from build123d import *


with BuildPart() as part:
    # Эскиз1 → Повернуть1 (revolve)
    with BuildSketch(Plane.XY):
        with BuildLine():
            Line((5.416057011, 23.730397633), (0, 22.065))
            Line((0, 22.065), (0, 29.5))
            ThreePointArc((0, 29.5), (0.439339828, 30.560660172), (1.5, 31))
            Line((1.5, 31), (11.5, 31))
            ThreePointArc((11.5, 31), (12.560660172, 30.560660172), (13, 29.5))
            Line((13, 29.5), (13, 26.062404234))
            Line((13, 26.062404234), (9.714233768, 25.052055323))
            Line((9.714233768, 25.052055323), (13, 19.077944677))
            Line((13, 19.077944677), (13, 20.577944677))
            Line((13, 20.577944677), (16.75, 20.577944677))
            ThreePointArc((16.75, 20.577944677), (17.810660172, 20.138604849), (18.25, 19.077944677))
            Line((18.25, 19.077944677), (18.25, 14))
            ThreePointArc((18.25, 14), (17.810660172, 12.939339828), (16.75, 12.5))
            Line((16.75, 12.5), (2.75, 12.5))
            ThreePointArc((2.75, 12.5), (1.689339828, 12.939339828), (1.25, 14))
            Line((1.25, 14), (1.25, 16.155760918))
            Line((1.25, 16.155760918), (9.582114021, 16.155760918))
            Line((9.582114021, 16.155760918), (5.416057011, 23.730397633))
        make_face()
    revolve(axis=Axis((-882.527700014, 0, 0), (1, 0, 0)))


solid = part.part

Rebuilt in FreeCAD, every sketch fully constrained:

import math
import FreeCAD as App
import Part
import Sketcher
from FreeCAD import Vector

doc = App.newDocument("Part")
body = doc.addObject("PartDesign::Body", "Body")

# Sketch on XY plane
sketch1 = body.newObject("Sketcher::SketchObject", "Sketch")
sketch1.AttachmentSupport = (doc.getObject("XY_Plane"), [""])
sketch1.MapMode = "FlatFace"
sketch1.addGeometry(Part.LineSegment(Vector(0, 22.065, 0), Vector(5.416057, 23.730398, 0)), False)
sketch1.addGeometry(Part.LineSegment(Vector(5.416057, 23.730398, 0), Vector(9.582114, 16.155761, 0)), False)
sketch1.addGeometry(Part.LineSegment(Vector(9.582114, 16.155761, 0), Vector(1.25, 16.155761, 0)), False)
sketch1.addGeometry(Part.LineSegment(Vector(1.25, 16.155761, 0), Vector(1.25, 14, 0)), False)
sketch1.addGeometry(Part.ArcOfCircle(Part.Circle(Vector(2.75, 14, 0), Vector(0, 0, 1), 1.5), math.radians(180), math.radians(270)), False)
sketch1.addGeometry(Part.LineSegment(Vector(2.75, 12.5, 0), Vector(16.75, 12.5, 0)), False)
sketch1.addGeometry(Part.ArcOfCircle(Part.Circle(Vector(16.75, 14, 0), Vector(0, 0, 1), 1.5), math.radians(-90), math.radians(0)), False)
sketch1.addGeometry(Part.LineSegment(Vector(18.25, 14, 0), Vector(18.25, 19.077945, 0)), False)
sketch1.addGeometry(Part.ArcOfCircle(Part.Circle(Vector(16.75, 19.077945, 0), Vector(0, 0, 1), 1.5), math.radians(0), math.radians(90)), False)
sketch1.addGeometry(Part.LineSegment(Vector(16.75, 20.577945, 0), Vector(13, 20.577945, 0)), False)
sketch1.addGeometry(Part.LineSegment(Vector(13, 20.577945, 0), Vector(13, 19.077945, 0)), False)
sketch1.addGeometry(Part.LineSegment(Vector(13, 19.077945, 0), Vector(9.714234, 25.052055, 0)), False)
sketch1.addGeometry(Part.LineSegment(Vector(9.714234, 25.052055, 0), Vector(13, 26.062404, 0)), False)
sketch1.addGeometry(Part.LineSegment(Vector(13, 26.062404, 0), Vector(13, 29.5, 0)), False)
sketch1.addGeometry(Part.ArcOfCircle(Part.Circle(Vector(11.5, 29.5, 0), Vector(0, 0, 1), 1.5), math.radians(0), math.radians(90)), False)
sketch1.addGeometry(Part.LineSegment(Vector(11.5, 31, 0), Vector(1.5, 31, 0)), False)
sketch1.addGeometry(Part.ArcOfCircle(Part.Circle(Vector(1.5, 29.5, 0), Vector(0, 0, 1), 1.5), math.radians(90), math.radians(180)), False)
sketch1.addGeometry(Part.LineSegment(Vector(0, 29.5, 0), Vector(0, 22.065, 0)), False)
sketch1.addConstraint(Sketcher.Constraint("Coincident", 0, 2, 1, 1))
sketch1.addConstraint(Sketcher.Constraint("Coincident", 1, 2, 2, 1))
sketch1.addConstraint(Sketcher.Constraint("Coincident", 2, 2, 3, 1))
sketch1.addConstraint(Sketcher.Constraint("Tangent", 3, 2, 4, 1))
sketch1.addConstraint(Sketcher.Constraint("Tangent", 4, 2, 5, 1))
sketch1.addConstraint(Sketcher.Constraint("Tangent", 5, 2, 6, 1))
sketch1.addConstraint(Sketcher.Constraint("Tangent", 6, 2, 7, 1))
sketch1.addConstraint(Sketcher.Constraint("Tangent", 7, 2, 8, 1))
sketch1.addConstraint(Sketcher.Constraint("Tangent", 8, 2, 9, 1))
sketch1.addConstraint(Sketcher.Constraint("Coincident", 9, 2, 10, 1))
sketch1.addConstraint(Sketcher.Constraint("Coincident", 10, 2, 11, 1))
sketch1.addConstraint(Sketcher.Constraint("Coincident", 11, 2, 12, 1))
sketch1.addConstraint(Sketcher.Constraint("Coincident", 12, 2, 13, 1))
sketch1.addConstraint(Sketcher.Constraint("Tangent", 13, 2, 14, 1))
sketch1.addConstraint(Sketcher.Constraint("Tangent", 14, 2, 15, 1))
sketch1.addConstraint(Sketcher.Constraint("Tangent", 15, 2, 16, 1))
sketch1.addConstraint(Sketcher.Constraint("Tangent", 16, 2, 17, 1))
sketch1.addConstraint(Sketcher.Constraint("Coincident", 17, 2, 0, 1))
sketch1.addConstraint(Sketcher.Constraint("Horizontal", 2))
sketch1.addConstraint(Sketcher.Constraint("Vertical", 3))
sketch1.addConstraint(Sketcher.Constraint("Horizontal", 5))
sketch1.addConstraint(Sketcher.Constraint("Vertical", 7))
sketch1.addConstraint(Sketcher.Constraint("Horizontal", 9))
sketch1.addConstraint(Sketcher.Constraint("Vertical", 10))
sketch1.addConstraint(Sketcher.Constraint("Vertical", 13))
sketch1.addConstraint(Sketcher.Constraint("Horizontal", 15))
sketch1.addConstraint(Sketcher.Constraint("Vertical", 17))
sketch1.addConstraint(Sketcher.Constraint("Equal", 4, 6))
sketch1.addConstraint(Sketcher.Constraint("Equal", 6, 8))
sketch1.addConstraint(Sketcher.Constraint("Equal", 8, 14))
sketch1.addConstraint(Sketcher.Constraint("Equal", 14, 16))
sketch1.addConstraint(Sketcher.Constraint("PointOnObject", 16, 2, -2))
sketch1.addConstraint(Sketcher.Constraint("Parallel", 1, 11))
sketch1.addConstraint(Sketcher.Constraint("Parallel", 0, 12))
sketch1.addConstraint(Sketcher.Constraint("Horizontal", 7, 2, 10, 2))
sketch1.addConstraint(Sketcher.Constraint("Vertical", 10, 2, 12, 2))
sketch1.addConstraint(Sketcher.Constraint("Radius", 4, 1.5))
sketch1.addConstraint(Sketcher.Constraint("DistanceX", 5, 1, 5, 2, 14.0))
sketch1.addConstraint(Sketcher.Constraint("DistanceX", 15, 2, 15, 1, 10.0))
sketch1.addConstraint(Sketcher.Constraint("DistanceY", -1, 1, 4, 3, 14.0))
sketch1.addConstraint(Sketcher.Constraint("DistanceY", -1, 1, 14, 2, 31.0))
sketch1.addConstraint(Sketcher.Constraint("DistanceX", 9, 2, 9, 1, 3.75))
sketch1.addConstraint(Sketcher.Constraint("DistanceY", 17, 2, 17, 1, 7.435))
sketch1.addConstraint(Sketcher.Constraint("DistanceY", 3, 2, 3, 1, 2.155761))
sketch1.addConstraint(Sketcher.Constraint("Distance", 1, 8.644718))
sketch1.addConstraint(Sketcher.Constraint("DistanceX", 2, 2, 2, 1, 8.332114))
sketch1.addConstraint(Sketcher.Constraint("DistanceY", 7, 1, 7, 2, 5.077945))
sketch1.addConstraint(Sketcher.Constraint("DistanceY", 13, 1, 13, 2, 3.437596))
sketch1.addConstraint(Sketcher.Constraint("DistanceY", 9, 2, 11, 2, 4.474111))
revolution = body.newObject("PartDesign::Revolution", "Revolution")
revolution.Profile = sketch1
revolution.ReferenceAxis = (sketch1, ["H_Axis"])
revolution.Angle = 360

doc.recompute()
